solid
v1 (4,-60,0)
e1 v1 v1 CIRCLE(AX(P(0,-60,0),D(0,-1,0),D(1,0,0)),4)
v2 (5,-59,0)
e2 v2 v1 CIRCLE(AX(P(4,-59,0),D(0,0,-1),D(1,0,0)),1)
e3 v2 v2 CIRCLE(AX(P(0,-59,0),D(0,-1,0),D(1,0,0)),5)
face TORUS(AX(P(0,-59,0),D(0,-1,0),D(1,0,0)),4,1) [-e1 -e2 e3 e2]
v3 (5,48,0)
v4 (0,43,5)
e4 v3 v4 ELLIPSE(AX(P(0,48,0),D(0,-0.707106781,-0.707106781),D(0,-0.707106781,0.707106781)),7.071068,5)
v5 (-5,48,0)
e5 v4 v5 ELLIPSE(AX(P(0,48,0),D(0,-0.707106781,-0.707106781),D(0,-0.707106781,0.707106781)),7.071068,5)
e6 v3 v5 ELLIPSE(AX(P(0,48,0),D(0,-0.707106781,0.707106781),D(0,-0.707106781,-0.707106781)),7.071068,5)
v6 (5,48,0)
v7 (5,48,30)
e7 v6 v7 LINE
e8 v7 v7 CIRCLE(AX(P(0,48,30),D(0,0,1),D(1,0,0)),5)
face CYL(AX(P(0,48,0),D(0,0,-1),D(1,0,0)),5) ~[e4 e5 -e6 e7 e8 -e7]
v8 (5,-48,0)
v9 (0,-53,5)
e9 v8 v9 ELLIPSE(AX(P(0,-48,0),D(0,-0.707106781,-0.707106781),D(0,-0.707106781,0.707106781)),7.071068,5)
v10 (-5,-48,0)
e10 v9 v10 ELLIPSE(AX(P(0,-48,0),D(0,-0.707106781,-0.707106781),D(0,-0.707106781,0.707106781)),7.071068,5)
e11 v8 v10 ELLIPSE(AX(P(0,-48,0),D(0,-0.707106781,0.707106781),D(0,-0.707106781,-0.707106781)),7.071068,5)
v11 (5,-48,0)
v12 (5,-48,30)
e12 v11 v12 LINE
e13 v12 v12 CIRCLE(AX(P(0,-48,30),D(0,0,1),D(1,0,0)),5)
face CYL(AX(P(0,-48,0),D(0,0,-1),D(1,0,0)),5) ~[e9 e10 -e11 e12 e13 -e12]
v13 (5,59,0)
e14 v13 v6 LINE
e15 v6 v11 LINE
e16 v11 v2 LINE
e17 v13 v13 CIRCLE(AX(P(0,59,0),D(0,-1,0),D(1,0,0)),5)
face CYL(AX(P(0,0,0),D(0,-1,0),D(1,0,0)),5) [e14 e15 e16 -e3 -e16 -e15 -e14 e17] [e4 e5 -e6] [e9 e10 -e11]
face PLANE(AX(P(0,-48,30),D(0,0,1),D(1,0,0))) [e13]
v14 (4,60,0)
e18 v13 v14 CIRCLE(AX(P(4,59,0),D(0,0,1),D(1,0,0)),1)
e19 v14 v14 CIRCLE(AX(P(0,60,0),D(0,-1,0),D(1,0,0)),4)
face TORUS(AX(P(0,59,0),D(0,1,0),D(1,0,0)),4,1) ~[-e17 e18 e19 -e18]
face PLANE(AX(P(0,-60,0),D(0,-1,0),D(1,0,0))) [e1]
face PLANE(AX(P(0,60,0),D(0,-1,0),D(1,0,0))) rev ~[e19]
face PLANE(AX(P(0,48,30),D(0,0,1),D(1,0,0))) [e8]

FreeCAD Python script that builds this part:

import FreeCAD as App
import Part
import Sketcher
Q = App.Units.Quantity


def edges_at(feature, points):
    """Names of the edges that pass closest to the given points."""
    edges = feature.Shape.Edges
    near = lambda p: min(range(len(edges)), key=lambda i: edges[i].distToShape(Part.Vertex(*p))[0])
    return sorted({f"Edge{near(p) + 1}" for p in points})

doc = App.newDocument("Part")
body = doc.addObject("PartDesign::Body", "Body")

sketch1 = doc.addObject("Sketcher::SketchObject", "Sketch")
body.addObject(sketch1)
sketch1.AttachmentSupport = (doc.XZ_Plane, [""])
sketch1.MapMode = "FlatFace"
sketch1.addGeometry(Part.Circle(App.Vector(0, 0, 0), App.Vector(0, 0, 1), 5), False)
sketch1.addConstraint([
    Sketcher.Constraint("Coincident", 0, 3, -1, 1),
    Sketcher.Constraint("Diameter", 0, Q("10 mm")),
])
pad1 = doc.addObject("PartDesign::Pad", "Pad")
body.addObject(pad1)
pad1.Profile = sketch1
pad1.Length = 120
pad1.Midplane = True

sketch2 = doc.addObject("Sketcher::SketchObject", "Sketch001")
body.addObject(sketch2)
sketch2.AttachmentSupport = (doc.XY_Plane, [""])
sketch2.MapMode = "FlatFace"
sketch2.addGeometry([
    Part.Circle(App.Vector(0, 48, 0), App.Vector(0, 0, 1), 5),
    Part.Circle(App.Vector(0, -48, 0), App.Vector(0, 0, 1), 5),
], False)
sketch2.addConstraint([
    Sketcher.Constraint("Equal", 0, 1),
    Sketcher.Constraint("Symmetric", 0, 3, 1, 3, -1, 1),
    Sketcher.Constraint("PointOnObject", 0, 3, -2),
    Sketcher.Constraint("Diameter", 0, Q("10 mm")),
    Sketcher.Constraint("DistanceY", -1, 1, 0, 3, Q("48 mm")),
])
pad2 = doc.addObject("PartDesign::Pad", "Pad001")
body.addObject(pad2)
pad2.Profile = sketch2
pad2.Length = 30
doc.recompute()

fillet = doc.addObject("PartDesign::Fillet", "Fillet")
body.addObject(fillet)
fillet.Base = (pad2, edges_at(pad2, [(-5, 60, 0), (-5, -60, 0)]))
fillet.Radius = 1

doc.recompute()
